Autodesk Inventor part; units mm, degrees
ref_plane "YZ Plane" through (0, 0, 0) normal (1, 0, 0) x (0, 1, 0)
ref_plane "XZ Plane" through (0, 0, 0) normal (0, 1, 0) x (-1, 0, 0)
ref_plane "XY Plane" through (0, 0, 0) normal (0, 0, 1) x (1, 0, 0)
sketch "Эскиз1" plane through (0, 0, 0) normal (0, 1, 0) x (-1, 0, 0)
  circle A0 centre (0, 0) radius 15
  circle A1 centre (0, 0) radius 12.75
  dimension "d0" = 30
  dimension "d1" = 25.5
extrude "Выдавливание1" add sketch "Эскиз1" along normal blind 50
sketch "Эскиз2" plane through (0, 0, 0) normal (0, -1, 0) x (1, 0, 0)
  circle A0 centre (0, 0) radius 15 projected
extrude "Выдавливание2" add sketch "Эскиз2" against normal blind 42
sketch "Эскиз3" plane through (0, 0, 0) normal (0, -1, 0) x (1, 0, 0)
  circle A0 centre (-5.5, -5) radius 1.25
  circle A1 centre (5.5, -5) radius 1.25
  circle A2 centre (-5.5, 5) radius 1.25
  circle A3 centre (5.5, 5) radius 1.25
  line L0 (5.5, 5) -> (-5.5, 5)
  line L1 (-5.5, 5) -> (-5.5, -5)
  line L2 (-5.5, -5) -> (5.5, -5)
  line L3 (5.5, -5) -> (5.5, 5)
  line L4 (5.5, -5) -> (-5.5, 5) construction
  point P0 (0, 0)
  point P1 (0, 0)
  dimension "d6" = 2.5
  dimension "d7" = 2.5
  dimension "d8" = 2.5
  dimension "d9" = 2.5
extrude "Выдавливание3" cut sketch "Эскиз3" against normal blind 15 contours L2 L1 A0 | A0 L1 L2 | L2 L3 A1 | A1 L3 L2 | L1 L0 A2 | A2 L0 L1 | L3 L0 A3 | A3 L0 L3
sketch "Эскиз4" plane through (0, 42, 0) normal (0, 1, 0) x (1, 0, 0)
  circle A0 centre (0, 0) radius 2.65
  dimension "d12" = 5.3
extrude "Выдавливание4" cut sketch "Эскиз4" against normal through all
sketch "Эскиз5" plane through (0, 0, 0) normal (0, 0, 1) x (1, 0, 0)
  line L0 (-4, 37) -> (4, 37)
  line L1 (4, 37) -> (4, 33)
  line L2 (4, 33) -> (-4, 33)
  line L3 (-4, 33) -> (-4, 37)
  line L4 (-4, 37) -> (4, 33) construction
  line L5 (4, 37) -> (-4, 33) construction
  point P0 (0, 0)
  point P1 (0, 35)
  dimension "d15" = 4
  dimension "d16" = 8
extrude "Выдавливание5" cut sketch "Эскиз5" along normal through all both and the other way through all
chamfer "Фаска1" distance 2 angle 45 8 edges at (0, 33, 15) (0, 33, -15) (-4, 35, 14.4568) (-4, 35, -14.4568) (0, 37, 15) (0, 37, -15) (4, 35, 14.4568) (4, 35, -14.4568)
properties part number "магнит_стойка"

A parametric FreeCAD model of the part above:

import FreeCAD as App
import Part
import Sketcher

V = App.Vector


def edges_at(feature, points):
    """Names of the edges that pass closest to the given points."""
    edges = feature.Shape.Edges
    near = lambda p: min(range(len(edges)), key=lambda i: edges[i].distToShape(Part.Vertex(*p))[0])
    return sorted({f"Edge{near(p) + 1}" for p in points})

doc = App.newDocument("Part")
body = doc.addObject("PartDesign::Body", "Body")

sketch1 = body.newObject("Sketcher::SketchObject", "Sketch")
sketch1.AttachmentSupport = (doc.getObject("XZ_Plane"), [""])
sketch1.MapMode = "FlatFace"
sketch1.addGeometry([
    Part.Circle(V(0, 0, 0), V(0, 0, 1), 15),
    Part.Circle(V(0, 0, 0), V(0, 0, 1), 13),
], False)
sketch1.addConstraint([
    Sketcher.Constraint("Coincident", 0, 3, -1, 1),
    Sketcher.Constraint("Coincident", 1, 3, -1, 1),
    Sketcher.Constraint("Diameter", 0, 30.0),
    Sketcher.Constraint("Diameter", 1, 25.5),
])
pad1 = body.newObject("PartDesign::Pad", "Pad")
pad1.Profile = sketch1
pad1.Length = 50
pad1.Reversed = True

sketch2 = body.newObject("Sketcher::SketchObject", "Sketch001")
sketch2.AttachmentSupport = (doc.getObject("XZ_Plane"), [""])
sketch2.MapMode = "FlatFace"
sketch2.addGeometry(Part.Circle(V(0, 0, 0), V(0, 0, 1), 15), False)
sketch2.addConstraint([
    Sketcher.Constraint("Coincident", 0, 3, -1, 1),
    Sketcher.Constraint("Diameter", 0, 30.0),
])
pad2 = body.newObject("PartDesign::Pad", "Pad001")
pad2.Profile = sketch2
pad2.Length = 42
pad2.Reversed = True

sketch3 = body.newObject("Sketcher::SketchObject", "Sketch002")
sketch3.AttachmentSupport = (doc.getObject("XZ_Plane"), [""])
sketch3.MapMode = "FlatFace"
sketch3.addGeometry([
    Part.Circle(V(-5.5, -5, 0), V(0, 0, 1), 1.2),
    Part.Circle(V(5.5, -5, 0), V(0, 0, 1), 1.2),
    Part.Circle(V(-5.5, 5, 0), V(0, 0, 1), 1.2),
    Part.Circle(V(5.5, 5, 0), V(0, 0, 1), 1.2),
], False)
sketch3.addConstraint([
    Sketcher.Constraint("Equal", 0, 1),
    Sketcher.Constraint("Equal", 1, 2),
    Sketcher.Constraint("Equal", 2, 3),
    Sketcher.Constraint("Symmetric", 1, 3, 2, 3, -1, 1),
    Sketcher.Constraint("Symmetric", 0, 3, 3, 3, -1, 1),
    Sketcher.Constraint("Symmetric", 0, 3, 1, 3, -2),
    Sketcher.Constraint("Diameter", 0, 2.5),
    Sketcher.Constraint("DistanceY", 0, 3, -1, 1, 5.0),
    Sketcher.Constraint("DistanceX", 0, 3, 1, 3, 11.0),
])
pocket1 = body.newObject("PartDesign::Pocket", "Pocket")
pocket1.Profile = sketch3
pocket1.Length = 15

sketch4 = body.newObject("Sketcher::SketchObject", "Sketch003")
sketch4.AttachmentSupport = (doc.getObject("XZ_Plane"), [""])
sketch4.MapMode = "FlatFace"
sketch4.AttachmentOffset = App.Placement(V(0, 0, -42), App.Rotation())
sketch4.addGeometry(Part.Circle(V(0, 0, 0), V(0, 0, 1), 2.6), False)
sketch4.addConstraint([
    Sketcher.Constraint("Coincident", 0, 3, -1, 1),
    Sketcher.Constraint("Diameter", 0, 5.3),
])
pocket2 = body.newObject("PartDesign::Pocket", "Pocket001")
pocket2.Profile = sketch4
pocket2.Type = "ThroughAll"
pocket2.Reversed = True

sketch5 = body.newObject("Sketcher::SketchObject", "Sketch004")
sketch5.AttachmentSupport = (doc.getObject("XY_Plane"), [""])
sketch5.MapMode = "FlatFace"
sketch5.addGeometry([
    Part.LineSegment(V(4, 37, 0), V(-4, 37, 0)),
    Part.LineSegment(V(-4, 37, 0), V(-4, 33, 0)),
    Part.LineSegment(V(-4, 33, 0), V(4, 33, 0)),
    Part.LineSegment(V(4, 33, 0), V(4, 37, 0)),
], False)
sketch5.addConstraint([
    Sketcher.Constraint("Coincident", 0, 2, 1, 1),
    Sketcher.Constraint("Coincident", 1, 2, 2, 1),
    Sketcher.Constraint("Coincident", 2, 2, 3, 1),
    Sketcher.Constraint("Coincident", 3, 2, 0, 1),
    Sketcher.Constraint("Horizontal", 0),
    Sketcher.Constraint("Vertical", 1),
    Sketcher.Constraint("Horizontal", 2),
    Sketcher.Constraint("Vertical", 3),
    Sketcher.Constraint("DistanceX", 0, 2, 0, 1, 8.0),
    Sketcher.Constraint("DistanceY", 1, 2, 1, 1, 4.0),
    Sketcher.Constraint("DistanceX", 0, 2, -1, 1, 4.0),
    Sketcher.Constraint("DistanceY", -1, 1, 0, 2, 37.0),
])
pocket3 = body.newObject("PartDesign::Pocket", "Pocket002")
pocket3.Profile = sketch5
pocket3.Type = "ThroughAll"
pocket3.Midplane = True
doc.recompute()

chamfer = body.newObject("PartDesign::Chamfer", "Chamfer")
chamfer.Base = (pocket3, edges_at(pocket3, [
    (0, 33, 15),
    (0, 33, -15),
    (-4, 35, 14.457),
    (-4, 35, -14.457),
    (0, 37, 15),
    (0, 37, -15),
    (4, 35, 14.457),
    (4, 35, -14.457),
]))
chamfer.Size = 2

doc.recompute()
